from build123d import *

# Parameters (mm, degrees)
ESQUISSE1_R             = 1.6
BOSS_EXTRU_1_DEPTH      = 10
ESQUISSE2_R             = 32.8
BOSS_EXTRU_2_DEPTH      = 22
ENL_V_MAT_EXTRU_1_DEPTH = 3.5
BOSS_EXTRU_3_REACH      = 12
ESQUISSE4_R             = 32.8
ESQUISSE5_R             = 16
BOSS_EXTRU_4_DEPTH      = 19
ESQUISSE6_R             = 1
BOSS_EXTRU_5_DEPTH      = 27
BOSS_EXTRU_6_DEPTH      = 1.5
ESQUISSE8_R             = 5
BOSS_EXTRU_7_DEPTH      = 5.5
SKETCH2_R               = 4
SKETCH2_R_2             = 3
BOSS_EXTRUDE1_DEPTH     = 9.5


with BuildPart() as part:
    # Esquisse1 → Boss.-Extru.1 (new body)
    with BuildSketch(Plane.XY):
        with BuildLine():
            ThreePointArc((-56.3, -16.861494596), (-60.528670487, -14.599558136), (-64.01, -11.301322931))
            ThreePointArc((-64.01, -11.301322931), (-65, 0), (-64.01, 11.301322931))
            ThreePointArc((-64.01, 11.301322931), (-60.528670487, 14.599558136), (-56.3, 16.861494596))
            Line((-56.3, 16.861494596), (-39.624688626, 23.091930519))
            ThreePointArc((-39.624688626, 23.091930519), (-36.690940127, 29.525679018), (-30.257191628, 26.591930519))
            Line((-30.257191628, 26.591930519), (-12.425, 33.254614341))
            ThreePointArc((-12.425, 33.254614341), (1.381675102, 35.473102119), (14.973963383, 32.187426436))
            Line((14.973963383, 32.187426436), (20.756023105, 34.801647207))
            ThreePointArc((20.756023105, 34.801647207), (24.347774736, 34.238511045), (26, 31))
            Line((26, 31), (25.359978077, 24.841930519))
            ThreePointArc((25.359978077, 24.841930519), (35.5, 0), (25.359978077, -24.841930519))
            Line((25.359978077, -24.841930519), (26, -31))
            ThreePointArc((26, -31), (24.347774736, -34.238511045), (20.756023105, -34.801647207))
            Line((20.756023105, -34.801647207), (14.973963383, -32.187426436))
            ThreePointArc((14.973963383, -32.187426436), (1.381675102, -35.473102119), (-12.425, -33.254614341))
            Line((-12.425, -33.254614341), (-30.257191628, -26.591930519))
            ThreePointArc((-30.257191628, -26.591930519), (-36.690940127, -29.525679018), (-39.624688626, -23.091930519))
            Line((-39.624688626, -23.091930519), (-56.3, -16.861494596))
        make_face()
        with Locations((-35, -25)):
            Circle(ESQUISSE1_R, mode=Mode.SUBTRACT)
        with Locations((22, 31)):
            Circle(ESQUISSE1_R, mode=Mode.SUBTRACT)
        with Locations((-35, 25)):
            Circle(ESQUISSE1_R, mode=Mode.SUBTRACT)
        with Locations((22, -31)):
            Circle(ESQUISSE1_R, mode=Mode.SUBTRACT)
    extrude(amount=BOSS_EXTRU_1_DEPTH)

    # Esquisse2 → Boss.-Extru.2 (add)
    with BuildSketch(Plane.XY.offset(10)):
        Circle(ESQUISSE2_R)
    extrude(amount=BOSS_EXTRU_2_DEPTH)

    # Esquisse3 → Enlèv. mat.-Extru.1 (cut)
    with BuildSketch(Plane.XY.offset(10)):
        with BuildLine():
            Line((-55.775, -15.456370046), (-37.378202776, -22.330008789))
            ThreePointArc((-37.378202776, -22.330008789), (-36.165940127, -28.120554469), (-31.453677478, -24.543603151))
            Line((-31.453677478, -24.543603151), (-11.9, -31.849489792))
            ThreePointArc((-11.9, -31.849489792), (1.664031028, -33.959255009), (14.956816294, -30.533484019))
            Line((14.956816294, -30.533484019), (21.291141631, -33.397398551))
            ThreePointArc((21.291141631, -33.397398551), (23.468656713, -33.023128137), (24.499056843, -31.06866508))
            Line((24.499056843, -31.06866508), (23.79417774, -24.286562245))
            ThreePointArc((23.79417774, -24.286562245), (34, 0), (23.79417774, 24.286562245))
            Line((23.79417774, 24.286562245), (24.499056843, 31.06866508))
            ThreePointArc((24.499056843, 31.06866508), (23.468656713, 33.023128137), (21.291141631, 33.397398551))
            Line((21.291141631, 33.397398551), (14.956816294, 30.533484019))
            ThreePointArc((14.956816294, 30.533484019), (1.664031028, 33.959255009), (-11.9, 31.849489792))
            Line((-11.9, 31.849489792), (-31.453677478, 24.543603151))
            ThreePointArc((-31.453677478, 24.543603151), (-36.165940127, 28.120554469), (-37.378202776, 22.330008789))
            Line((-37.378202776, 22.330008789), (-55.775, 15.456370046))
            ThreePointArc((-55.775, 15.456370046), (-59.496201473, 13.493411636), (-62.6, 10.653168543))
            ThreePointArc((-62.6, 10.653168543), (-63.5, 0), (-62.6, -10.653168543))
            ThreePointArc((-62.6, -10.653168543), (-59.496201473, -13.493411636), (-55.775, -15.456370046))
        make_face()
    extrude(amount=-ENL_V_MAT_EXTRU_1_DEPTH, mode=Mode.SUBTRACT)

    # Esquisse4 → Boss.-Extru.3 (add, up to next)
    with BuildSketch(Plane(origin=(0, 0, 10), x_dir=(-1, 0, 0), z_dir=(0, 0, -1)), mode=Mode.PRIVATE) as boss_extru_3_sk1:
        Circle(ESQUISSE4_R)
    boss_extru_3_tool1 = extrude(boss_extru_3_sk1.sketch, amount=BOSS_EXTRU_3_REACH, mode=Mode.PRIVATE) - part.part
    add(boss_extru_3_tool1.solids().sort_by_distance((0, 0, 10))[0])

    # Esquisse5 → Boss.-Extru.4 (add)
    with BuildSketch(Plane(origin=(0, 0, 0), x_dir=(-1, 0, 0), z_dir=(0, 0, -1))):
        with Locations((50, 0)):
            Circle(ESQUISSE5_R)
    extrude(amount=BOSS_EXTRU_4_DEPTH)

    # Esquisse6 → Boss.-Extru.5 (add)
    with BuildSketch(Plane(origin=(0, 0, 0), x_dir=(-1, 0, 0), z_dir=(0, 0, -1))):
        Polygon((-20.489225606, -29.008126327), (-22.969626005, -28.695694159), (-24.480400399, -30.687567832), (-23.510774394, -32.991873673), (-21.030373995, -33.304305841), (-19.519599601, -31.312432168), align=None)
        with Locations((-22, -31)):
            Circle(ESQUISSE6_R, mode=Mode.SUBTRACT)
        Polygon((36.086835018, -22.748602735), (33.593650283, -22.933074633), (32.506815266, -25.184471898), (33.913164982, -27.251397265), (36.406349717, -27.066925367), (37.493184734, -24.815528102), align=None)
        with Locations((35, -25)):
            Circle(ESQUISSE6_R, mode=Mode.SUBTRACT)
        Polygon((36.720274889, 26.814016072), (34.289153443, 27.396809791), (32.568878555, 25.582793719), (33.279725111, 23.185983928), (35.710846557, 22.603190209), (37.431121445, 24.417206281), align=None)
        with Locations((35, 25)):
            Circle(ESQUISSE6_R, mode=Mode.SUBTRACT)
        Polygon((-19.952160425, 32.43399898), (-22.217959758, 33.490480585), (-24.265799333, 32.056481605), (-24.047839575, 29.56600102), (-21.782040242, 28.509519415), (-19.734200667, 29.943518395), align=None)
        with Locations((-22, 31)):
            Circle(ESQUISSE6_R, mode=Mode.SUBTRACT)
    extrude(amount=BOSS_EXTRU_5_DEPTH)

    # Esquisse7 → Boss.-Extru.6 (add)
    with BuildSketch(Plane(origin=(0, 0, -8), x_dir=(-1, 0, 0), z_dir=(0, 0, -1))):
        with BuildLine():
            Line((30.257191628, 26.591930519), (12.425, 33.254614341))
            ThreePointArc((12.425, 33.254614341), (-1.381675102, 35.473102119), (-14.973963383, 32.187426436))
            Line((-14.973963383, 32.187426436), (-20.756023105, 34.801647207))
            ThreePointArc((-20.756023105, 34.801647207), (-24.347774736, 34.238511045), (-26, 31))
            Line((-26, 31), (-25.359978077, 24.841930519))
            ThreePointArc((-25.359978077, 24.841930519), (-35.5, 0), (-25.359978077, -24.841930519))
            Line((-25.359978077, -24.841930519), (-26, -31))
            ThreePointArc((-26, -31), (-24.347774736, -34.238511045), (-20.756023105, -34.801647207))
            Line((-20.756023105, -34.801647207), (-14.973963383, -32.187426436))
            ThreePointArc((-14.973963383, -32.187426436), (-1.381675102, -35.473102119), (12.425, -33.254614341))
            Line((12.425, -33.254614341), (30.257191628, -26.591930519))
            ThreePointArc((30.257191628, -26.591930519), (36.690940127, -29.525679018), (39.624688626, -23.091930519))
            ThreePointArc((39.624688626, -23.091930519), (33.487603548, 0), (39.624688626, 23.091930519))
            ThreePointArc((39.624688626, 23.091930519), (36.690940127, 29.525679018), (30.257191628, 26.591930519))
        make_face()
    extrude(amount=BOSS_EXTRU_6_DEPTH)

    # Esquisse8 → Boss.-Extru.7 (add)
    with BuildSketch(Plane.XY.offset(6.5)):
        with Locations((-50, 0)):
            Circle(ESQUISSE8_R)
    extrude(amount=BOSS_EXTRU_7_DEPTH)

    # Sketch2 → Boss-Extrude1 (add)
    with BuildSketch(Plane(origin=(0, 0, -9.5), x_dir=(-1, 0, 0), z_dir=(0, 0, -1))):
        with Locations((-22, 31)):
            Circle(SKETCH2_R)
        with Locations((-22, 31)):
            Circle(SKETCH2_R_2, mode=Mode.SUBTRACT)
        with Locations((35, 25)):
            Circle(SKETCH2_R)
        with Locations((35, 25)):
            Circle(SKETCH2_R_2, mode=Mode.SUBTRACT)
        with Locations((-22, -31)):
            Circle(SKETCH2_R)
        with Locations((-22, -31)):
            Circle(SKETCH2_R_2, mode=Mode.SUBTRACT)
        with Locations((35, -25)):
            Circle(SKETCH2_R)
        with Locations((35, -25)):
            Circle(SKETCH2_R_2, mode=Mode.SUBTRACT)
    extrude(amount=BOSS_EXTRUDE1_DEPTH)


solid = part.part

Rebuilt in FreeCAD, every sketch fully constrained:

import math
import FreeCAD as App
import Part
import Sketcher
from FreeCAD import Vector
Q = App.Units.Quantity


def add_polygon(sketch, points):
    """Adds a closed chain of lines whose ends are joined by coincident constraints."""
    first, n = sketch.GeometryCount, len(points)
    for a, b in zip(points, points[1:] + points[:1]):
        sketch.addGeometry(Part.LineSegment(App.Vector(*a, 0), App.Vector(*b, 0)), False)
    for i in range(n):
        sketch.addConstraint(Sketcher.Constraint("Coincident", first + i, 2, first + (i + 1) % n, 1))

doc = App.newDocument("Part")
params = doc.addObject("Spreadsheet::Sheet", "Params")
for row, (alias, value) in enumerate([
    ("sketch1_radius", "18 mm"),
    ("sketch1_radius2", "5 mm"),
    ("sketch1_radius3", "4 mm"),
    ("sketch1_radius4", "65 mm"),
    ("sketch1_diameter", "3.2 mm"),
    ("pad1_length", "10 mm"),
    ("sketch2_diameter", "65.6 mm"),
    ("pad2_length", "22 mm"),
    ("sketch3_radius", "34 mm"),
    ("sketch3_radius2", "3.5 mm"),
    ("sketch3_radius3", "2.5 mm"),
    ("sketch3_radius4", "16.5 mm"),
    ("sketch3_radius5", "63.5 mm"),
    ("pocket1_length", "3.5 mm"),
    ("sketch4_diameter", "65.6 mm"),
    ("sketch5_diameter", "32 mm"),
    ("pad4_length", "19 mm"),
    ("sketch6_diameter", "2 mm"),
    ("sketch6_length", "2.5 mm"),
    ("pad5_length", "27 mm"),
    ("sketch7_radius", "4 mm"),
    ("sketch7_radius2", "5 mm"),
    ("sketch7_radius3", "35.5 mm"),
    ("pad6_length", "1.5 mm"),
    ("sketch8_diameter", "10 mm"),
    ("pad7_length", "5.5 mm"),
    ("sketch9_diameter", "8 mm"),
    ("sketch9_diameter2", "6 mm"),
    ("pad8_length", "9.5 mm"),
], start=1):
    params.set(f"A{row}", alias)
    params.set(f"B{row}", "=" + value)
    params.setAlias(f"B{row}", alias)

body = doc.addObject("PartDesign::Body", "Body")
body.AllowCompound = True

sketch1 = doc.addObject("Sketcher::SketchObject", "Sketch")
body.addObject(sketch1)
sketch1.AttachmentSupport = (doc.XY_Plane, [""])
sketch1.MapMode = "FlatFace"
sketch1.addGeometry([
    Part.ArcOfCircle(Part.Circle(Vector(-50, 0, 0), Vector(0, 0, 1), 18), math.radians(-141), math.radians(-110)),
    Part.LineSegment(Vector(-56.3, -16.9, 0), Vector(-39.6, -23.1, 0)),
    Part.ArcOfCircle(Part.Circle(Vector(-34.9, -24.8, 0), Vector(0, 0, 1), 5), math.radians(160), math.radians(340)),
    Part.LineSegment(Vector(-30.3, -26.6, 0), Vector(-12.4, -33.3, 0)),
    Part.ArcOfCircle(Part.Circle(Vector(0, 0, 0), Vector(0, 0, 1), 35.5), math.radians(-110), math.radians(-65)),
    Part.LineSegment(Vector(15, -32.2, 0), Vector(20.8, -34.8, 0)),
    Part.ArcOfCircle(Part.Circle(Vector(22, -31, 0), Vector(0, 0, 1), 4), math.radians(-108), math.radians(0)),
    Part.LineSegment(Vector(26, -31, 0), Vector(25.4, -24.8, 0)),
    Part.ArcOfCircle(Part.Circle(Vector(0, 0, 0), Vector(0, 0, 1), 35.5), math.radians(-44), math.radians(44)),
    Part.LineSegment(Vector(25.4, 24.8, 0), Vector(26, 31, 0)),
    Part.ArcOfCircle(Part.Circle(Vector(22, 31, 0), Vector(0, 0, 1), 4), math.radians(0), math.radians(108)),
    Part.LineSegment(Vector(20.8, 34.8, 0), Vector(15, 32.2, 0)),
    Part.ArcOfCircle(Part.Circle(Vector(0, 0, 0), Vector(0, 0, 1), 35.5), math.radians(65), math.radians(110)),
    Part.LineSegment(Vector(-12.4, 33.3, 0), Vector(-30.3, 26.6, 0)),
    Part.ArcOfCircle(Part.Circle(Vector(-34.9, 24.8, 0), Vector(0, 0, 1), 5), math.radians(20), math.radians(200)),
    Part.LineSegment(Vector(-39.6, 23.1, 0), Vector(-56.3, 16.9, 0)),
    Part.ArcOfCircle(Part.Circle(Vector(-50, 0, 0), Vector(0, 0, 1), 18), math.radians(110), math.radians(141)),
    Part.ArcOfCircle(Part.Circle(Vector(0, 0, 0), Vector(0, 0, 1), 65), math.radians(170), math.radians(190)),
    Part.Circle(Vector(22, -31, 0), Vector(0, 0, 1), 1.6),
    Part.Circle(Vector(-35, -25, 0), Vector(0, 0, 1), 1.6),
    Part.Circle(Vector(22, 31, 0), Vector(0, 0, 1), 1.6),
    Part.Circle(Vector(-35, 25, 0), Vector(0, 0, 1), 1.6),
], False)
sketch1.addConstraint([
    Sketcher.Constraint("Tangent", 0, 2, 1, 1),
    Sketcher.Constraint("Coincident", 1, 2, 2, 1),
    Sketcher.Constraint("Coincident", 2, 2, 3, 1),
    Sketcher.Constraint("Tangent", 3, 2, 4, 1),
    Sketcher.Constraint("Coincident", 4, 2, 5, 1),
    Sketcher.Constraint("Coincident", 5, 2, 6, 1),
    Sketcher.Constraint("Coincident", 6, 2, 7, 1),
    Sketcher.Constraint("Coincident", 7, 2, 8, 1),
    Sketcher.Constraint("Coincident", 8, 2, 9, 1),
    Sketcher.Constraint("Coincident", 9, 2, 10, 1),
    Sketcher.Constraint("Coincident", 10, 2, 11, 1),
    Sketcher.Constraint("Coincident", 11, 2, 12, 1),
    Sketcher.Constraint("Tangent", 12, 2, 13, 1),
    Sketcher.Constraint("Coincident", 13, 2, 14, 1),
    Sketcher.Constraint("Coincident", 14, 2, 15, 1),
    Sketcher.Constraint("Tangent", 15, 2, 16, 1),
    Sketcher.Constraint("Coincident", 16, 2, 17, 1),
    Sketcher.Constraint("Coincident", 17, 2, 0, 1),
    Sketcher.Constraint("Coincident", 4, 3, -1, 1),
    Sketcher.Constraint("Coincident", 8, 3, -1, 1),
    Sketcher.Constraint("Coincident", 12, 3, -1, 1),
    Sketcher.Constraint("Coincident", 17, 3, -1, 1),
    Sketcher.Constraint("Coincident", 16, 3, 0, 3),
    Sketcher.Constraint("Coincident", 18, 3, 6, 3),
    Sketcher.Constraint("Coincident", 20, 3, 10, 3),
    Sketcher.Constraint("Equal", 4, 8),
    Sketcher.Constraint("Equal", 6, 10),
    Sketcher.Constraint("Equal", 8, 12),
    Sketcher.Constraint("Equal", 2, 14),
    Sketcher.Constraint("Equal", 0, 16),
    Sketcher.Constraint("Equal", 18, 19),
    Sketcher.Constraint("Equal", 19, 20),
    Sketcher.Constraint("Equal", 20, 21),
    Sketcher.Constraint("Symmetric", 6, 3, 10, 3, -1),
    Sketcher.Constraint("Symmetric", 2, 3, 14, 3, -1),
    Sketcher.Constraint("Symmetric", 19, 3, 21, 3, -1),
    Sketcher.Constraint("Symmetric", 0, 2, 15, 2, -1),
    Sketcher.Constraint("Parallel", 1, 3),
    Sketcher.Constraint("Parallel", 13, 15),
    Sketcher.Constraint("Horizontal", 18, 3, 6, 2),
    Sketcher.Constraint("Horizontal", 2, 3, 7, 2),
    Sketcher.Constraint("Horizontal", 14, 3, 8, 2),
    Sketcher.Constraint("Horizontal", 20, 3, 9, 2),
    Sketcher.Constraint("Vertical", 5, 2, 10, 2),
    Sketcher.Constraint("Vertical", 4, 2, 11, 2),
    Sketcher.Constraint("Radius", 0, Q("18 mm")),
    Sketcher.Constraint("Radius", 2, Q("5 mm")),
    Sketcher.Constraint("Radius", 6, Q("4 mm")),
    Sketcher.Constraint("Radius", 17, Q("65 mm")),
    Sketcher.Constraint("Diameter", 18, Q("3.2 mm")),
    Sketcher.Constraint("Radius", 4, Q("35.5 mm")),
    Sketcher.Constraint("DistanceX", 0, 3, -1, 1, Q("50 mm")),
    Sketcher.Constraint("DistanceX", -1, 1, 6, 3, Q("22 mm")),
    Sketcher.Constraint("DistanceY", 6, 3, -1, 1, Q("31 mm")),
    Sketcher.Constraint("DistanceX", 19, 3, -1, 1, Q("35 mm")),
    Sketcher.Constraint("DistanceY", 19, 3, -1, 1, Q("25 mm")),
    Sketcher.Constraint("DistanceX", 0, 2, -1, 1, Q("56.3 mm")),
    Sketcher.Constraint("DistanceY", 2, 3, 1, 2, Q("1.75 mm")),
    Sketcher.Constraint("Distance", 3, Q("19.036239 mm")),
    Sketcher.Constraint("Distance", 5, Q("6.345578 mm")),
    Sketcher.Constraint("DistanceX", 4, 2, 5, 2, Q("5.78206 mm")),
])
sketch1.setExpression("Constraints[45]", "Params.sketch1_radius")
sketch1.setExpression("Constraints[46]", "Params.sketch1_radius2")
sketch1.setExpression("Constraints[47]", "Params.sketch1_radius3")
sketch1.setExpression("Constraints[48]", "Params.sketch1_radius4")
sketch1.setExpression("Constraints[49]", "Params.sketch1_diameter")
pad1 = doc.addObject("PartDesign::Pad", "Pad")
body.addObject(pad1)
pad1.Profile = sketch1
pad1.setExpression("Length", "Params.pad1_length")

sketch2 = doc.addObject("Sketcher::SketchObject", "Sketch001")
body.addObject(sketch2)
sketch2.AttachmentSupport = (doc.XY_Plane, [""])
sketch2.MapMode = "FlatFace"
sketch2.AttachmentOffset = App.Placement(Vector(0, 0, 10), App.Rotation())
sketch2.addGeometry(Part.Circle(Vector(0, 0, 0), Vector(0, 0, 1), 33), False)
sketch2.addConstraint([
    Sketcher.Constraint("Coincident", 0, 3, -1, 1),
    Sketcher.Constraint("Diameter", 0, Q("65.6 mm")),
])
sketch2.setExpression("Constraints[1]", "Params.sketch2_diameter")
pad2 = doc.addObject("PartDesign::Pad", "Pad001")
body.addObject(pad2)
pad2.Profile = sketch2
pad2.setExpression("Length", "Params.pad2_length")

sketch3 = doc.addObject("Sketcher::SketchObject", "Sketch002")
body.addObject(sketch3)
sketch3.AttachmentSupport = (doc.XY_Plane, [""])
sketch3.MapMode = "FlatFace"
sketch3.AttachmentOffset = App.Placement(Vector(0, 0, 10), App.Rotation())
sketch3.addGeometry([
    Part.LineSegment(Vector(-55.8, -15.5, 0), Vector(-37.4, -22.3, 0)),
    Part.ArcOfCircle(Part.Circle(Vector(-34.9, -24.8, 0), Vector(0, 0, 1), 3.5), math.radians(134), math.radians(365)),
    Part.LineSegment(Vector(-31.5, -24.5, 0), Vector(-11.9, -31.8, 0)),
    Part.ArcOfCircle(Part.Circle(Vector(0, 0, 0), Vector(0, 0, 1), 34), math.radians(-110), math.radians(-64)),
    Part.LineSegment(Vector(15, -30.5, 0), Vector(21.3, -33.4, 0)),
    Part.ArcOfCircle(Part.Circle(Vector(22, -31, 0), Vector(0, 0, 1), 2.5), math.radians(-106), math.radians(-2)),
    Part.LineSegment(Vector(24.5, -31.1, 0), Vector(23.8, -24.3, 0)),
    Part.ArcOfCircle(Part.Circle(Vector(0, 0, 0), Vector(0, 0, 1), 34), math.radians(-46), math.radians(46)),
    Part.LineSegment(Vector(23.8, 24.3, 0), Vector(24.5, 31.1, 0)),
    Part.ArcOfCircle(Part.Circle(Vector(22, 31, 0), Vector(0, 0, 1), 2.5), math.radians(2), math.radians(106)),
    Part.LineSegment(Vector(21.3, 33.4, 0), Vector(15, 30.5, 0)),
    Part.ArcOfCircle(Part.Circle(Vector(0, 0, 0), Vector(0, 0, 1), 34), math.radians(64), math.radians(110)),
    Part.LineSegment(Vector(-11.9, 31.8, 0), Vector(-31.5, 24.5, 0)),
    Part.ArcOfCircle(Part.Circle(Vector(-34.9, 24.8, 0), Vector(0, 0, 1), 3.5), math.radians(-5), math.radians(226)),
    Part.LineSegment(Vector(-37.4, 22.3, 0), Vector(-55.8, 15.5, 0)),
    Part.ArcOfCircle(Part.Circle(Vector(-50, 0, 0), Vector(0, 0, 1), 16.5), math.radians(110), math.radians(140)),
    Part.ArcOfCircle(Part.Circle(Vector(0, 0, 0), Vector(0, 0, 1), 63.5), math.radians(170.34), math.radians(189.66)),
    Part.ArcOfCircle(Part.Circle(Vector(-50, 0, 0), Vector(0, 0, 1), 16.5), math.radians(-140), math.radians(-110)),
], False)
sketch3.addConstraint([
    Sketcher.Constraint("Coincident", 0, 2, 1, 1),
    Sketcher.Constraint("Coincident", 1, 2, 2, 1),
    Sketcher.Constraint("Tangent", 2, 2, 3, 1),
    Sketcher.Constraint("Coincident", 3, 2, 4, 1),
    Sketcher.Constraint("Coincident", 4, 2, 5, 1),
    Sketcher.Constraint("Coincident", 5, 2, 6, 1),
    Sketcher.Constraint("Coincident", 6, 2, 7, 1),
    Sketcher.Constraint("Coincident", 7, 2, 8, 1),
    Sketcher.Constraint("Coincident", 8, 2, 9, 1),
    Sketcher.Constraint("Coincident", 9, 2, 10, 1),
    Sketcher.Constraint("Coincident", 10, 2, 11, 1),
    Sketcher.Constraint("Tangent", 11, 2, 12, 1),
    Sketcher.Constraint("Coincident", 12, 2, 13, 1),
    Sketcher.Constraint("Coincident", 13, 2, 14, 1),
    Sketcher.Constraint("Tangent", 14, 2, 15, 1),
    Sketcher.Constraint("Coincident", 15, 2, 16, 1),
    Sketcher.Constraint("Coincident", 16, 2, 17, 1),
    Sketcher.Constraint("Tangent", 17, 2, 0, 1),
    Sketcher.Constraint("Coincident", 3, 3, -1, 1),
    Sketcher.Constraint("Coincident", 7, 3, -1, 1),
    Sketcher.Constraint("Coincident", 11, 3, -1, 1),
    Sketcher.Constraint("Coincident", 16, 3, -1, 1),
    Sketcher.Constraint("Coincident", 17, 3, 15, 3),
    Sketcher.Constraint("Equal", 3, 7),
    Sketcher.Constraint("Equal", 5, 9),
    Sketcher.Constraint("Equal", 7, 11),
    Sketcher.Constraint("Equal", 1, 13),
    Sketcher.Constraint("Equal", 15, 17),
    Sketcher.Constraint("Symmetric", 5, 3, 9, 3, -1),
    Sketcher.Constraint("Symmetric", 1, 3, 13, 3, -1),
    Sketcher.Constraint("Symmetric", 14, 2, 17, 2, -1),
    Sketcher.Constraint("Parallel", 0, 2),
    Sketcher.Constraint("Parallel", 12, 14),
    Sketcher.Constraint("Vertical", 6, 2, 7, 2),
    Sketcher.Constraint("Vertical", 5, 2, 8, 2),
    Sketcher.Constraint("Vertical", 4, 2, 9, 2),
    Sketcher.Constraint("Vertical", 3, 2, 10, 2),
    Sketcher.Constraint("Radius", 3, Q("34 mm")),
    Sketcher.Constraint("Radius", 1, Q("3.5 mm")),
    Sketcher.Constraint("Radius", 5, Q("2.5 mm")),
    Sketcher.Constraint("Radius", 15, Q("16.5 mm")),
    Sketcher.Constraint("Radius", 16, Q("63.5 mm")),
    Sketcher.Constraint("DistanceX", -1, 1, 5, 3, Q("22 mm")),
    Sketcher.Constraint("DistanceY", 5, 3, -1, 1, Q("31 mm")),
    Sketcher.Constraint("DistanceX", 15, 3, -1, 1, Q("50 mm")),
    Sketcher.Constraint("DistanceX", 2, 2, -1, 1, Q("11.9 mm")),
    Sketcher.Constraint("DistanceY", 4, 2, -1, 1, Q("33.397399 mm")),
    Sketcher.Constraint("Distance", 2, Q("20.873962 mm")),
    Sketcher.Constraint("DistanceX", 1, 3, -1, 1, Q("34.94094 mm")),
    Sketcher.Constraint("DistanceX", 3, 2, 5, 2, Q("9.542241 mm")),
    Sketcher.Constraint("DistanceY", 5, 2, 3, 2, Q("0.535181 mm")),
    Sketcher.Constraint("DistanceX", 6, 2, 5, 2, Q("0.704879 mm")),
])
sketch3.setExpression("Constraints[37]", "Params.sketch3_radius")
sketch3.setExpression("Constraints[38]", "Params.sketch3_radius2")
sketch3.setExpression("Constraints[39]", "Params.sketch3_radius3")
sketch3.setExpression("Constraints[40]", "Params.sketch3_radius4")
sketch3.setExpression("Constraints[41]", "Params.sketch3_radius5")
pocket1 = doc.addObject("PartDesign::Pocket", "Pocket")
body.addObject(pocket1)
pocket1.Profile = sketch3
pocket1.setExpression("Length", "Params.pocket1_length")

sketch4 = doc.addObject("Sketcher::SketchObject", "Sketch003")
body.addObject(sketch4)
sketch4.AttachmentSupport = (doc.XY_Plane, [""])
sketch4.MapMode = "FlatFace"
sketch4.AttachmentOffset = App.Placement(Vector(0, 0, 10), App.Rotation())
sketch4.addGeometry(Part.Circle(Vector(0, 0, 0), Vector(0, 0, 1), 33), False)
sketch4.addConstraint([
    Sketcher.Constraint("Coincident", 0, 3, -1, 1),
    Sketcher.Constraint("Diameter", 0, Q("65.6 mm")),
])
sketch4.setExpression("Constraints[1]", "Params.sketch4_diameter")
pad3 = doc.addObject("PartDesign::Pad", "Pad002")
body.addObject(pad3)
pad3.Profile = sketch4
pad3.Type = "UpToFirst"
pad3.Reversed = True

sketch5 = doc.addObject("Sketcher::SketchObject", "Sketch004")
body.addObject(sketch5)
sketch5.AttachmentSupport = (doc.XY_Plane, [""])
sketch5.MapMode = "FlatFace"
sketch5.addGeometry(Part.Circle(Vector(-50, 0, 0), Vector(0, 0, 1), 16), False)
sketch5.addConstraint([
    Sketcher.Constraint("PointOnObject", 0, 3, -1),
    Sketcher.Constraint("Diameter", 0, Q("32 mm")),
    Sketcher.Constraint("DistanceX", 0, 3, -1, 1, Q("50 mm")),
])
sketch5.setExpression("Constraints[1]", "Params.sketch5_diameter")
pad4 = doc.addObject("PartDesign::Pad", "Pad003")
body.addObject(pad4)
pad4.Profile = sketch5
pad4.setExpression("Length", "Params.pad4_length")
pad4.Reversed = True

sketch6 = doc.addObject("Sketcher::SketchObject", "Sketch005")
body.addObject(sketch6)
sketch6.AttachmentSupport = (doc.XY_Plane, [""])
sketch6.MapMode = "FlatFace"
add_polygon(sketch6, [(20.5, -29), (23, -28.7), (24.5, -30.7), (23.5, -33), (21, -33.3), (19.5, -31.3)])
sketch6.addGeometry(Part.Circle(Vector(22, -31, 0), Vector(0, 0, 1), 1), False)
add_polygon(sketch6, [(-36.1, -22.7), (-33.6, -22.9), (-32.5, -25.2), (-33.9, -27.3), (-36.4, -27.1), (-37.5, -24.8)])
sketch6.addGeometry(Part.Circle(Vector(-35, -25, 0), Vector(0, 0, 1), 1), False)
add_polygon(sketch6, [(-36.7, 26.8), (-34.3, 27.4), (-32.6, 25.6), (-33.3, 23.2), (-35.7, 22.6), (-37.4, 24.4)])
sketch6.addGeometry(Part.Circle(Vector(-35, 25, 0), Vector(0, 0, 1), 1), False)
add_polygon(sketch6, [(20, 32.4), (22.2, 33.5), (24.3, 32.1), (24, 29.6), (21.8, 28.5), (19.7, 29.9)])
sketch6.addGeometry(Part.Circle(Vector(22, 31, 0), Vector(0, 0, 1), 1), False)
sketch6.addConstraint([
    Sketcher.Constraint("Equal", 6, 13),
    Sketcher.Constraint("Equal", 13, 20),
    Sketcher.Constraint("Equal", 20, 27),
    Sketcher.Constraint("Symmetric", 13, 3, 20, 3, -1),
    Sketcher.Constraint("Symmetric", 6, 3, 27, 3, -1),
    Sketcher.Constraint("Parallel", 0, 3),
    Sketcher.Constraint("Parallel", 1, 4),
    Sketcher.Constraint("Parallel", 2, 5),
    Sketcher.Constraint("Parallel", 7, 10),
    Sketcher.Constraint("Parallel", 8, 11),
    Sketcher.Constraint("Parallel", 9, 12),
    Sketcher.Constraint("Parallel", 14, 17),
    Sketcher.Constraint("Parallel", 15, 18),
    Sketcher.Constraint("Parallel", 16, 19),
    Sketcher.Constraint("Parallel", 21, 24),
    Sketcher.Constraint("Parallel", 22, 25),
    Sketcher.Constraint("Parallel", 23, 26),
    Sketcher.Constraint("Equal", 0, 1),
    Sketcher.Constraint("Equal", 1, 2),
    Sketcher.Constraint("Equal", 2, 3),
    Sketcher.Constraint("Equal", 5, 7),
    Sketcher.Constraint("Equal", 7, 8),
    Sketcher.Constraint("Equal", 8, 9),
    Sketcher.Constraint("Equal", 9, 10),
    Sketcher.Constraint("Equal", 12, 14),
    Sketcher.Constraint("Equal", 14, 15),
    Sketcher.Constraint("Equal", 15, 16),
    Sketcher.Constraint("Equal", 16, 17),
    Sketcher.Constraint("Equal", 19, 21),
    Sketcher.Constraint("Equal", 21, 22),
    Sketcher.Constraint("Equal", 22, 23),
    Sketcher.Constraint("Equal", 23, 24),
    Sketcher.Constraint("Diameter", 6, Q("2 mm")),
    Sketcher.Constraint("DistanceX", -1, 1, 6, 3, Q("22 mm")),
    Sketcher.Constraint("DistanceY", 6, 3, -1, 1, Q("31 mm")),
    Sketcher.Constraint("DistanceX", 13, 3, -1, 1, Q("35 mm")),
    Sketcher.Constraint("DistanceY", 13, 3, -1, 1, Q("25 mm")),
    Sketcher.Constraint("Distance", 0, Q("2.5 mm")),
    Sketcher.Constraint("DistanceY", -1, 1, 23, 2, Q("29.566001 mm")),
    Sketcher.Constraint("DistanceY", -1, 1, 26, 2, Q("32.433999 mm")),
    Sketcher.Constraint("DistanceY", 22, 2, 21, 2, Q("1.433999 mm")),
    Sketcher.Constraint("DistanceX", -1, 1, 1, 2, Q("24.4804 mm")),
    Sketcher.Constraint("DistanceX", -1, 1, 4, 2, Q("19.5196 mm")),
    Sketcher.Constraint("DistanceX", -1, 1, 22, 2, Q("24.265799 mm")),
    Sketcher.Constraint("DistanceX", -1, 1, 25, 2, Q("19.734201 mm")),
    Sketcher.Constraint("DistanceX", 3, 2, 2, 2, Q("2.4804 mm")),
    Sketcher.Constraint("DistanceX", 10, 2, 7, 2, Q("2.812699 mm")),
    Sketcher.Constraint("DistanceX", 7, 2, -1, 1, Q("33.59365 mm")),
    Sketcher.Constraint("DistanceY", 8, 2, -1, 1, Q("25.184472 mm")),
    Sketcher.Constraint("DistanceY", 11, 2, -1, 1, Q("24.815528 mm")),
    Sketcher.Constraint("DistanceY", -1, 1, 14, 2, Q("27.39681 mm")),
    Sketcher.Constraint("DistanceX", 15, 2, -1, 1, Q("32.568879 mm")),
    Sketcher.Constraint("DistanceY", -1, 1, 17, 2, Q("22.60319 mm")),
    Sketcher.Constraint("DistanceX", 18, 2, -1, 1, Q("37.431121 mm")),
    Sketcher.Constraint("DistanceX", 0, 2, 2, 2, Q("0.541148 mm")),
    Sketcher.Constraint("DistanceY", 5, 2, 7, 2, Q("6.075052 mm")),
    Sketcher.Constraint("DistanceY", 4, 2, 8, 2, Q("6.12796 mm")),
    Sketcher.Constraint("DistanceX", 12, 2, 14, 2, Q("1.797682 mm")),
])
sketch6.setExpression("Constraints[56]", "Params.sketch6_diameter")
sketch6.setExpression("Constraints[61]", "Params.sketch6_length")
pad5 = doc.addObject("PartDesign::Pad", "Pad004")
body.addObject(pad5)
pad5.Profile = sketch6
pad5.setExpression("Length", "Params.pad5_length")
pad5.Reversed = True

sketch7 = doc.addObject("Sketcher::SketchObject", "Sketch006")
body.addObject(sketch7)
sketch7.AttachmentSupport = (doc.XY_Plane, [""])
sketch7.MapMode = "FlatFace"
sketch7.AttachmentOffset = App.Placement(Vector(0, 0, -8), App.Rotation())
sketch7.addGeometry([
    Part.LineSegment(Vector(-30.3, 26.6, 0), Vector(-12.4, 33.3, 0)),
    Part.ArcOfCircle(Part.Circle(Vector(0, 0, 0), Vector(0, 0, 1), 35.5), math.radians(65), math.radians(110)),
    Part.LineSegment(Vector(15, 32.2, 0), Vector(20.8, 34.8, 0)),
    Part.ArcOfCircle(Part.Circle(Vector(22, 31, 0), Vector(0, 0, 1), 4), math.radians(0), math.radians(108)),
    Part.LineSegment(Vector(26, 31, 0), Vector(25.4, 24.8, 0)),
    Part.ArcOfCircle(Part.Circle(Vector(0, 0, 0), Vector(0, 0, 1), 35.5), math.radians(-44), math.radians(44)),
    Part.LineSegment(Vector(25.4, -24.8, 0), Vector(26, -31, 0)),
    Part.ArcOfCircle(Part.Circle(Vector(22, -31, 0), Vector(0, 0, 1), 4), math.radians(-108), math.radians(0)),
    Part.LineSegment(Vector(20.8, -34.8, 0), Vector(15, -32.2, 0)),
    Part.ArcOfCircle(Part.Circle(Vector(0, 0, 0), Vector(0, 0, 1), 35.5), math.radians(-110), math.radians(-65)),
    Part.LineSegment(Vector(-12.4, -33.3, 0), Vector(-30.3, -26.6, 0)),
    Part.ArcOfCircle(Part.Circle(Vector(-34.9, -24.8, 0), Vector(0, 0, 1), 5), math.radians(160), math.radians(340)),
    Part.ArcOfCircle(Part.Circle(Vector(-80, 0, 0), Vector(0, 0, 1), 46.5), math.radians(-30), math.radians(30)),
    Part.ArcOfCircle(Part.Circle(Vector(-34.9, 24.8, 0), Vector(0, 0, 1), 5), math.radians(20), math.radians(200)),
], False)
sketch7.addConstraint([
    Sketcher.Constraint("Tangent", 0, 2, 1, 2),
    Sketcher.Constraint("Coincident", 1, 1, 2, 1),
    Sketcher.Constraint("Coincident", 2, 2, 3, 2),
    Sketcher.Constraint("Coincident", 3, 1, 4, 1),
    Sketcher.Constraint("Coincident", 4, 2, 5, 2),
    Sketcher.Constraint("Coincident", 5, 1, 6, 1),
    Sketcher.Constraint("Coincident", 6, 2, 7, 2),
    Sketcher.Constraint("Coincident", 7, 1, 8, 1),
    Sketcher.Constraint("Coincident", 8, 2, 9, 2),
    Sketcher.Constraint("Tangent", 9, 1, 10, 1),
    Sketcher.Constraint("Coincident", 10, 2, 11, 2),
    Sketcher.Constraint("Coincident", 11, 1, 12, 1),
    Sketcher.Constraint("Coincident", 12, 2, 13, 2),
    Sketcher.Constraint("Coincident", 13, 1, 0, 1),
    Sketcher.Constraint("Coincident", 1, 3, -1, 1),
    Sketcher.Constraint("Coincident", 5, 3, -1, 1),
    Sketcher.Constraint("Coincident", 9, 3, -1, 1),
    Sketcher.Constraint("Equal", 1, 5),
    Sketcher.Constraint("Equal", 3, 7),
    Sketcher.Constraint("Equal", 5, 9),
    Sketcher.Constraint("Equal", 11, 13),
    Sketcher.Constraint("Symmetric", 3, 3, 7, 3, -1),
    Sketcher.Constraint("Symmetric", 11, 3, 13, 3, -1),
    Sketcher.Constraint("PointOnObject", 12, 3, -1),
    Sketcher.Constraint("Horizontal", 13, 3, 4, 2),
    Sketcher.Constraint("Horizontal", 11, 3, 5, 1),
    Sketcher.Constraint("Horizontal", 7, 3, 6, 2),
    Sketcher.Constraint("Vertical", 2, 2, 7, 1),
    Sketcher.Constraint("Vertical", 1, 1, 8, 2),
    Sketcher.Constraint("Vertical", 0, 2, 9, 1),
    Sketcher.Constraint("Equal", 4, 6),
    Sketcher.Constraint("Radius", 3, Q("4 mm")),
    Sketcher.Constraint("Radius", 11, Q("5 mm")),
    Sketcher.Constraint("Radius", 1, Q("35.5 mm")),
    Sketcher.Constraint("DistanceX", -1, 1, 3, 3, Q("22 mm")),
    Sketcher.Constraint("DistanceY", -1, 1, 3, 3, Q("31 mm")),
    Sketcher.Constraint("DistanceX", 12, 3, -1, 1, Q("80 mm")),
    Sketcher.Constraint("DistanceY", 10, 2, 11, 1, Q("3.5 mm")),
    Sketcher.Constraint("DistanceY", 10, 2, 11, 3, Q("1.75 mm")),
    Sketcher.Constraint("DistanceX", 0, 2, -1, 1, Q("12.425 mm")),
    Sketcher.Constraint("Radius", 12, Q("46.512396 mm")),
    Sketcher.Constraint("Distance", 2, Q("6.345578 mm")),
    Sketcher.Constraint("DistanceX", 1, 1, 2, 2, Q("5.78206 mm")),
])
sketch7.setExpression("Constraints[31]", "Params.sketch7_radius")
sketch7.setExpression("Constraints[32]", "Params.sketch7_radius2")
sketch7.setExpression("Constraints[33]", "Params.sketch7_radius3")
pad6 = doc.addObject("PartDesign::Pad", "Pad005")
body.addObject(pad6)
pad6.Profile = sketch7
pad6.setExpression("Length", "Params.pad6_length")
pad6.Reversed = True

sketch8 = doc.addObject("Sketcher::SketchObject", "Sketch007")
body.addObject(sketch8)
sketch8.AttachmentSupport = (doc.XY_Plane, [""])
sketch8.MapMode = "FlatFace"
sketch8.AttachmentOffset = App.Placement(Vector(0, 0, 6.5), App.Rotation())
sketch8.addGeometry(Part.Circle(Vector(-50, 0, 0), Vector(0, 0, 1), 5), False)
sketch8.addConstraint([
    Sketcher.Constraint("PointOnObject", 0, 3, -1),
    Sketcher.Constraint("Diameter", 0, Q("10 mm")),
    Sketcher.Constraint("DistanceX", 0, 3, -1, 1, Q("50 mm")),
])
sketch8.setExpression("Constraints[1]", "Params.sketch8_diameter")
pad7 = doc.addObject("PartDesign::Pad", "Pad006")
body.addObject(pad7)
pad7.Profile = sketch8
pad7.setExpression("Length", "Params.pad7_length")

sketch9 = doc.addObject("Sketcher::SketchObject", "Sketch008")
body.addObject(sketch9)
sketch9.AttachmentSupport = (doc.XY_Plane, [""])
sketch9.MapMode = "FlatFace"
sketch9.AttachmentOffset = App.Placement(Vector(0, 0, -9.5), App.Rotation())
sketch9.addGeometry([
    Part.Circle(Vector(22, 31, 0), Vector(0, 0, 1), 4),
    Part.Circle(Vector(22, 31, 0), Vector(0, 0, 1), 3),
    Part.Circle(Vector(-35, 25, 0), Vector(0, 0, 1), 4),
    Part.Circle(Vector(-35, 25, 0), Vector(0, 0, 1), 3),
    Part.Circle(Vector(22, -31, 0), Vector(0, 0, 1), 4),
    Part.Circle(Vector(22, -31, 0), Vector(0, 0, 1), 3),
    Part.Circle(Vector(-35, -25, 0), Vector(0, 0, 1), 4),
    Part.Circle(Vector(-35, -25, 0), Vector(0, 0, 1), 3),
], False)
sketch9.addConstraint([
    Sketcher.Constraint("Coincident", 1, 3, 0, 3),
    Sketcher.Constraint("Coincident", 3, 3, 2, 3),
    Sketcher.Constraint("Coincident", 5, 3, 4, 3),
    Sketcher.Constraint("Coincident", 7, 3, 6, 3),
    Sketcher.Constraint("Equal", 0, 2),
    Sketcher.Constraint("Equal", 1, 3),
    Sketcher.Constraint("Equal", 2, 4),
    Sketcher.Constraint("Equal", 3, 5),
    Sketcher.Constraint("Equal", 4, 6),
    Sketcher.Constraint("Equal", 5, 7),
    Sketcher.Constraint("Symmetric", 0, 3, 4, 3, -1),
    Sketcher.Constraint("Symmetric", 2, 3, 6, 3, -1),
    Sketcher.Constraint("Diameter", 0, Q("8 mm")),
    Sketcher.Constraint("Diameter", 1, Q("6 mm")),
    Sketcher.Constraint("DistanceX", -1, 1, 0, 3, Q("22 mm")),
    Sketcher.Constraint("DistanceY", -1, 1, 0, 3, Q("31 mm")),
    Sketcher.Constraint("DistanceX", 2, 3, -1, 1, Q("35 mm")),
    Sketcher.Constraint("DistanceY", -1, 1, 2, 3, Q("25 mm")),
])
sketch9.setExpression("Constraints[12]", "Params.sketch9_diameter")
sketch9.setExpression("Constraints[13]", "Params.sketch9_diameter2")
pad8 = doc.addObject("PartDesign::Pad", "Pad007")
body.addObject(pad8)
pad8.Profile = sketch9
pad8.setExpression("Length", "Params.pad8_length")
pad8.Reversed = True

doc.recompute()
